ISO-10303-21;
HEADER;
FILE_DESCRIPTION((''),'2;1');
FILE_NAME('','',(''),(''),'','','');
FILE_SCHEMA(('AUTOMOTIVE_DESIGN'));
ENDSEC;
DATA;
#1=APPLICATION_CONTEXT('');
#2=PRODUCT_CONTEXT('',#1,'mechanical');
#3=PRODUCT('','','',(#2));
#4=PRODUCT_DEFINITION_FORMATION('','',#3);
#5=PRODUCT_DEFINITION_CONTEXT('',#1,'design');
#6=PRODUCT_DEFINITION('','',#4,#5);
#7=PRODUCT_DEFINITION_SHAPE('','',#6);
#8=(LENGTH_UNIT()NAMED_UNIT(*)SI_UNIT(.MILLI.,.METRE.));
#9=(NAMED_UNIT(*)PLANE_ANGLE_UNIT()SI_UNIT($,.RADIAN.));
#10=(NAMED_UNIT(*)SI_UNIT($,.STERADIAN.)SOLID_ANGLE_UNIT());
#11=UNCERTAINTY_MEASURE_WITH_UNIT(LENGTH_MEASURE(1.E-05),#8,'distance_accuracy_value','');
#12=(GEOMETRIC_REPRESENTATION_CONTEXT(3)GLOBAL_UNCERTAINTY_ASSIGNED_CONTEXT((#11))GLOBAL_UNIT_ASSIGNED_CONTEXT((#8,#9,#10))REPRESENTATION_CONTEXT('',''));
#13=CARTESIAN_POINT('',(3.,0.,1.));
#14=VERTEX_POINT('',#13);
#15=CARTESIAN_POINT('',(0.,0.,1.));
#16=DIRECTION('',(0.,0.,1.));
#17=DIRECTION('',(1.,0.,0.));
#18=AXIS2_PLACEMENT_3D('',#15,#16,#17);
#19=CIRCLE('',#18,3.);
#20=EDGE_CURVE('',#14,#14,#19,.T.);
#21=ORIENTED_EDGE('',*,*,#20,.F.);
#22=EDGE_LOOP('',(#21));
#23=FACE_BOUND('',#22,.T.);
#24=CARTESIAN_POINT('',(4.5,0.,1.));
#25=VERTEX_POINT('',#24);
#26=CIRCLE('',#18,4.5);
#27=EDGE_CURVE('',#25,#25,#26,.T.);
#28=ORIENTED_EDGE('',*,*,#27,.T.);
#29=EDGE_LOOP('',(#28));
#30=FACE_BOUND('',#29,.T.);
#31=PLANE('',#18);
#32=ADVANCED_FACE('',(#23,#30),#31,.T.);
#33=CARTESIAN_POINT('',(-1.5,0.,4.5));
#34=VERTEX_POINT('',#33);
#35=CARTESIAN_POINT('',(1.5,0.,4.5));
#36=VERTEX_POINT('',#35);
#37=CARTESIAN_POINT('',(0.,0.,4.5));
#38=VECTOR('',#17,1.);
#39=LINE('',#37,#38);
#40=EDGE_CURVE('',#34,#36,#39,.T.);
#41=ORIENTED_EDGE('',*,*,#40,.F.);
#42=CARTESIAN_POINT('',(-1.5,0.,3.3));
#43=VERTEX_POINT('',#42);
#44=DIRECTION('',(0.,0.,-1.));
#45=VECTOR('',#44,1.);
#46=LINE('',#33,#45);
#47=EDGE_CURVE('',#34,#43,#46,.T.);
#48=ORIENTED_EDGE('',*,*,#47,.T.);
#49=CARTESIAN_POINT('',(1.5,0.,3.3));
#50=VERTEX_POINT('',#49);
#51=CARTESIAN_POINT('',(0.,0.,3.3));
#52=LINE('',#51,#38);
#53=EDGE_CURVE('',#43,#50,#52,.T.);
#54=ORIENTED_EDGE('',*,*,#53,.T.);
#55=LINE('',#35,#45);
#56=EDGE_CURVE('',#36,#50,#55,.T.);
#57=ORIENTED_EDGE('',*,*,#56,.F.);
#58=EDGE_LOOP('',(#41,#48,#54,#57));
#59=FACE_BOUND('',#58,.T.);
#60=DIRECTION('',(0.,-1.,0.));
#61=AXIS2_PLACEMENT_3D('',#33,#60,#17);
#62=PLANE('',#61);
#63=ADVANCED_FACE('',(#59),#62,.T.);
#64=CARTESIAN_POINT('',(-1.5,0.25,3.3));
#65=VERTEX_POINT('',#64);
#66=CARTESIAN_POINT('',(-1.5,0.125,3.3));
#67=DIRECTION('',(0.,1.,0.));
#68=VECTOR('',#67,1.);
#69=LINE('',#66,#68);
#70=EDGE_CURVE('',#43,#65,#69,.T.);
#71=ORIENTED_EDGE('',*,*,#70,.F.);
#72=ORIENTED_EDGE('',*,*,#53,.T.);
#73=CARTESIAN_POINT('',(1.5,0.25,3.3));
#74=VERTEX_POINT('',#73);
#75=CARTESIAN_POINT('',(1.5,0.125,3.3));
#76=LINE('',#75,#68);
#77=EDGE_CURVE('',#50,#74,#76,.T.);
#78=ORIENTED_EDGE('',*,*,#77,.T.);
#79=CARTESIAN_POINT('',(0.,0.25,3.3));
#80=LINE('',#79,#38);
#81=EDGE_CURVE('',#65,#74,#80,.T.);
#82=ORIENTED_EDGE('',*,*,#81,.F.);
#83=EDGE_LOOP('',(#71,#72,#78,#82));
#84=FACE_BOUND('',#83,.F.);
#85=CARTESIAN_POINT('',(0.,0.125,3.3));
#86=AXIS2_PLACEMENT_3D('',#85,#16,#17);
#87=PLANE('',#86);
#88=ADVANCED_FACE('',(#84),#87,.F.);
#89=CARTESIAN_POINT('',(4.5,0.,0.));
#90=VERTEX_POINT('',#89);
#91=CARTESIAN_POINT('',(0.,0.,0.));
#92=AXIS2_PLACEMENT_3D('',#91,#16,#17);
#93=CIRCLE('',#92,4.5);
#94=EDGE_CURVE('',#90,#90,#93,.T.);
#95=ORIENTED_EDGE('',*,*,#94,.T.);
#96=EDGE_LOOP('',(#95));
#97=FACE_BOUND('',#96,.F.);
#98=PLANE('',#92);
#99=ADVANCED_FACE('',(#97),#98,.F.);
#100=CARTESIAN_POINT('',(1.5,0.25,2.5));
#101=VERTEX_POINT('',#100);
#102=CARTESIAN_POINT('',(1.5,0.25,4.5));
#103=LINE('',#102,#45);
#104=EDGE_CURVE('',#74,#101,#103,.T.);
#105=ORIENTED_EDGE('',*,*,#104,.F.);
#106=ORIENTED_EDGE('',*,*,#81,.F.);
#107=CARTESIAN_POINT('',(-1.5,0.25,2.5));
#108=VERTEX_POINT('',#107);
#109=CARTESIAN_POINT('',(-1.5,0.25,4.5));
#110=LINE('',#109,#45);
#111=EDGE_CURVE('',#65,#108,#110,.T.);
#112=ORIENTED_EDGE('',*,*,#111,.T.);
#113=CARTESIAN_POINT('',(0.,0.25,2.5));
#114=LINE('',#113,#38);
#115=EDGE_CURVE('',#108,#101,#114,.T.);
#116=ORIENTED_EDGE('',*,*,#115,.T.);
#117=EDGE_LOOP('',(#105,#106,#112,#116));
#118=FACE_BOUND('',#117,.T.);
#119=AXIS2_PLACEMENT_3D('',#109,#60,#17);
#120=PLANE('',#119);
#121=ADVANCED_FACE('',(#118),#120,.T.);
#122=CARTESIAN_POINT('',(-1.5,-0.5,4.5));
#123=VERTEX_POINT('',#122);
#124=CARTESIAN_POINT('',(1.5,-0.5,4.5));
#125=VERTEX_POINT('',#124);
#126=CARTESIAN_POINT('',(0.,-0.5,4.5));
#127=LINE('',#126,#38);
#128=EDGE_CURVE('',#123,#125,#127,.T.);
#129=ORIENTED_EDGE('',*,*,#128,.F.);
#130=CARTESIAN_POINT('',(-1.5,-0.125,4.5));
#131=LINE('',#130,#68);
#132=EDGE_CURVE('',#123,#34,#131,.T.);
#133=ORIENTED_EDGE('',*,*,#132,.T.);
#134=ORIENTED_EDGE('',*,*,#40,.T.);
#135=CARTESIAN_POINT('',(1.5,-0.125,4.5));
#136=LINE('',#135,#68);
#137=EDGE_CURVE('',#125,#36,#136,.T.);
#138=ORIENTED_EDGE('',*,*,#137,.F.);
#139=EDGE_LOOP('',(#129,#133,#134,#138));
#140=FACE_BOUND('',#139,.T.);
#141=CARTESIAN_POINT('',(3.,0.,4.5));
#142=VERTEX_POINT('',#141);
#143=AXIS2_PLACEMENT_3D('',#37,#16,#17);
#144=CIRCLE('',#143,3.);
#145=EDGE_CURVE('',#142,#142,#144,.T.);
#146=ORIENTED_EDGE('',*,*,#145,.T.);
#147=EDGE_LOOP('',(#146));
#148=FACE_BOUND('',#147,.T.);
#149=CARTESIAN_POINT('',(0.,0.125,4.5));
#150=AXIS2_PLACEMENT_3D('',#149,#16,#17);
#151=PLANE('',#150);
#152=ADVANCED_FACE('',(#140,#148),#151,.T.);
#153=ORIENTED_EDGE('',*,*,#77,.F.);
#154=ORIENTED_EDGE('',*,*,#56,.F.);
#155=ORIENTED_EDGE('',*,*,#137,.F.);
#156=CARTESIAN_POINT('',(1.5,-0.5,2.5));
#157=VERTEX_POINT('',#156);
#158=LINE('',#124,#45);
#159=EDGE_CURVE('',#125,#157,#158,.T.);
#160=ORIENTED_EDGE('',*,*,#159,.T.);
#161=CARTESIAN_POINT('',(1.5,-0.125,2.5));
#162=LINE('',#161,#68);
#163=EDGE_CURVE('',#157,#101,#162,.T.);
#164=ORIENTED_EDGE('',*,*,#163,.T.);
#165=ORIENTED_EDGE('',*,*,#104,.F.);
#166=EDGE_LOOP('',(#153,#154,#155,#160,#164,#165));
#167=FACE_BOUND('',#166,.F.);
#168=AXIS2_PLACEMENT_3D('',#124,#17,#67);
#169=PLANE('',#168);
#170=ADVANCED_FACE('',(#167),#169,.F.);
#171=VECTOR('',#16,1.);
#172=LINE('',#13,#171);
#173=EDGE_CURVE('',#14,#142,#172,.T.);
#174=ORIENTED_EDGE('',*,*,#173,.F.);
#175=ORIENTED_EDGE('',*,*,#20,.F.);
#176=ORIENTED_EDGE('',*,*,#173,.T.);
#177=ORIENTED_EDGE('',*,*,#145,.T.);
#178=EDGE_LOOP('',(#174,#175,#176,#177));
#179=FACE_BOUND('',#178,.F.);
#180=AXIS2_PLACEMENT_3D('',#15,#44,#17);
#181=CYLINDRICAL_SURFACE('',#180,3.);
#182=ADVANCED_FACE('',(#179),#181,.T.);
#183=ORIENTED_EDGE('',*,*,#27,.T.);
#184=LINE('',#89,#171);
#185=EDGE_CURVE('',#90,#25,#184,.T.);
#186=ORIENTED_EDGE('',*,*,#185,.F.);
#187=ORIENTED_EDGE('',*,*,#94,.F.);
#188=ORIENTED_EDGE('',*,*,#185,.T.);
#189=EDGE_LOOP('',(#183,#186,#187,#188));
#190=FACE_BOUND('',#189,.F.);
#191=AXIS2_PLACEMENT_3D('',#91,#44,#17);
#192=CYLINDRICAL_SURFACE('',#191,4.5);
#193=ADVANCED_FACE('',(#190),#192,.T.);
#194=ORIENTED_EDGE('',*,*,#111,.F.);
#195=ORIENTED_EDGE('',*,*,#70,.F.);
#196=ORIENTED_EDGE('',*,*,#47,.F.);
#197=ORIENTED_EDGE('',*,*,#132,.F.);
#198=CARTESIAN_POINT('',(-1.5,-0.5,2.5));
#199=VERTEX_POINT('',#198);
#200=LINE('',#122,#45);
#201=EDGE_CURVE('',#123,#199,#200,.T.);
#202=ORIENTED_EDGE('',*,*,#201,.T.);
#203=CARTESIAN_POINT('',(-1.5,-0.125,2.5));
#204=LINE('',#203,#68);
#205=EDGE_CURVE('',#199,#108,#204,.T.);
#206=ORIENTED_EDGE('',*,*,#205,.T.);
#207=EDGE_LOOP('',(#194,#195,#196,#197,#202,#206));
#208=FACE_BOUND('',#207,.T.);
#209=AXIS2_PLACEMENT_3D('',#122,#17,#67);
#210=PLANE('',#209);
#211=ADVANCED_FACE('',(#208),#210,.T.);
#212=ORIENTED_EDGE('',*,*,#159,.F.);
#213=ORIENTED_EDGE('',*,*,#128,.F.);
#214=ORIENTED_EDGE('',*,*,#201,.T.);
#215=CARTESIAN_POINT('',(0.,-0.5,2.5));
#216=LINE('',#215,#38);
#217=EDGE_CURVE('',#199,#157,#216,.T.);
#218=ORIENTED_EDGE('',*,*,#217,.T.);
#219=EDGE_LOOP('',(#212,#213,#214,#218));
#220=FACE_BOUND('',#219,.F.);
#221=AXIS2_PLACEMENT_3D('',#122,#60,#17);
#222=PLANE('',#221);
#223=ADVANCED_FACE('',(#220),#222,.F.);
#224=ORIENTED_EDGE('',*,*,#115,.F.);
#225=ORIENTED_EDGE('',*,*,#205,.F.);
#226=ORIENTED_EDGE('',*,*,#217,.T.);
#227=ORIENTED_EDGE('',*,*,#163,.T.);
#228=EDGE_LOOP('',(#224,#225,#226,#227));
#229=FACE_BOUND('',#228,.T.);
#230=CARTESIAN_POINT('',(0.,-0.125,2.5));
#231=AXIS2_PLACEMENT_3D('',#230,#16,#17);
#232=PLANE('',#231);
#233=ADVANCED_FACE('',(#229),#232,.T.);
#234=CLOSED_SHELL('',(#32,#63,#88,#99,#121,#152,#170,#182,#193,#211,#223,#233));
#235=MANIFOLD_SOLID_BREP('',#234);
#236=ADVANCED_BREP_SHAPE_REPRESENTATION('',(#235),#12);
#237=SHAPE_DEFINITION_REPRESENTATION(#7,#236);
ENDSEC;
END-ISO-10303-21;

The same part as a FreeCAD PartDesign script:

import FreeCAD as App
import Part
import Sketcher
Q = App.Units.Quantity


def add_polygon(sketch, points):
    """Adds a closed chain of lines whose ends are joined by coincident constraints."""
    first, n = sketch.GeometryCount, len(points)
    for a, b in zip(points, points[1:] + points[:1]):
        sketch.addGeometry(Part.LineSegment(App.Vector(*a, 0), App.Vector(*b, 0)), False)
    for i in range(n):
        sketch.addConstraint(Sketcher.Constraint("Coincident", first + i, 2, first + (i + 1) % n, 1))

doc = App.newDocument("Part")
body = doc.addObject("PartDesign::Body", "Body")

# Sketch on XY plane
sketch1 = body.newObject("Sketcher::SketchObject", "Sketch")
sketch1.AttachmentSupport = (doc.getObject("XY_Plane"), [""])
sketch1.MapMode = "FlatFace"
sketch1.addGeometry(Part.Circle(App.Vector(0, 0, 0), App.Vector(0, 0, 1), 4.5), False)
sketch1.addConstraint(Sketcher.Constraint("Coincident", 0, 3, -1, 1))
sketch1.addConstraint(Sketcher.Constraint("Diameter", 0, Q("9 mm")))
pad1 = body.newObject("PartDesign::Pad", "Pad")
pad1.Profile = sketch1
pad1.Length = 1

# Sketch on XY plane
sketch2 = body.newObject("Sketcher::SketchObject", "Sketch001")
sketch2.AttachmentSupport = (doc.getObject("XY_Plane"), [""])
sketch2.MapMode = "FlatFace"
sketch2.AttachmentOffset = App.Placement(App.Vector(0, 0, 1), App.Rotation())
sketch2.addGeometry(Part.Circle(App.Vector(0, 0, 0), App.Vector(0, 0, 1), 3), False)
sketch2.addConstraint(Sketcher.Constraint("Coincident", 0, 3, -1, 1))
sketch2.addConstraint(Sketcher.Constraint("Diameter", 0, Q("6 mm")))
pad2 = body.newObject("PartDesign::Pad", "Pad001")
pad2.Profile = sketch2
pad2.Length = 3.5

# Sketch on XY plane
sketch3 = body.newObject("Sketcher::SketchObject", "Sketch002")
sketch3.AttachmentSupport = (doc.getObject("XY_Plane"), [""])
sketch3.MapMode = "FlatFace"
sketch3.AttachmentOffset = App.Placement(App.Vector(0, 0, 4.5), App.Rotation())
add_polygon(sketch3, [(-1.5, 0.2), (-1.5, -0.5), (1.5, -0.5), (1.5, 0.2)])  # lines 0-3
sketch3.addConstraint(Sketcher.Constraint("Vertical", 0))
sketch3.addConstraint(Sketcher.Constraint("Horizontal", 1))
sketch3.addConstraint(Sketcher.Constraint("Vertical", 2))
sketch3.addConstraint(Sketcher.Constraint("Horizontal", 3))
sketch3.addConstraint(Sketcher.Constraint("DistanceX", 1, 1, 1, 2, Q("3 mm")))
sketch3.addConstraint(Sketcher.Constraint("DistanceY", 0, 2, 0, 1, Q("0.75 mm")))
sketch3.addConstraint(Sketcher.Constraint("DistanceX", 0, 2, -1, 1, Q("1.5 mm")))
sketch3.addConstraint(Sketcher.Constraint("DistanceY", 0, 2, -1, 1, Q("0.5 mm")))
pocket1 = body.newObject("PartDesign::Pocket", "Pocket")
pocket1.Profile = sketch3
pocket1.Length = 2

# Sketch on XY plane
sketch4 = body.newObject("Sketcher::SketchObject", "Sketch003")
sketch4.AttachmentSupport = (doc.getObject("XY_Plane"), [""])
sketch4.MapMode = "FlatFace"
sketch4.AttachmentOffset = App.Placement(App.Vector(0, 0, 4.5), App.Rotation())
add_polygon(sketch4, [(-1.5, 0.25), (-1.5, 0), (1.5, 0), (1.5, 0.25)])  # lines 0-3
sketch4.addConstraint(Sketcher.Constraint("Vertical", 0))
sketch4.addConstraint(Sketcher.Constraint("Horizontal", 1))
sketch4.addConstraint(Sketcher.Constraint("Vertical", 2))
sketch4.addConstraint(Sketcher.Constraint("Horizontal", 3))
sketch4.addConstraint(Sketcher.Constraint("Symmetric", 0, 2, 1, 2, -1, 1))
sketch4.addConstraint(Sketcher.Constraint("DistanceX", 1, 1, 1, 2, Q("3 mm")))
sketch4.addConstraint(Sketcher.Constraint("DistanceY", 0, 2, 0, 1, Q("0.25 mm")))
pad3 = body.newObject("PartDesign::Pad", "Pad002")
pad3.Profile = sketch4
pad3.Length = 1.2
pad3.Reversed = True

doc.recompute()
